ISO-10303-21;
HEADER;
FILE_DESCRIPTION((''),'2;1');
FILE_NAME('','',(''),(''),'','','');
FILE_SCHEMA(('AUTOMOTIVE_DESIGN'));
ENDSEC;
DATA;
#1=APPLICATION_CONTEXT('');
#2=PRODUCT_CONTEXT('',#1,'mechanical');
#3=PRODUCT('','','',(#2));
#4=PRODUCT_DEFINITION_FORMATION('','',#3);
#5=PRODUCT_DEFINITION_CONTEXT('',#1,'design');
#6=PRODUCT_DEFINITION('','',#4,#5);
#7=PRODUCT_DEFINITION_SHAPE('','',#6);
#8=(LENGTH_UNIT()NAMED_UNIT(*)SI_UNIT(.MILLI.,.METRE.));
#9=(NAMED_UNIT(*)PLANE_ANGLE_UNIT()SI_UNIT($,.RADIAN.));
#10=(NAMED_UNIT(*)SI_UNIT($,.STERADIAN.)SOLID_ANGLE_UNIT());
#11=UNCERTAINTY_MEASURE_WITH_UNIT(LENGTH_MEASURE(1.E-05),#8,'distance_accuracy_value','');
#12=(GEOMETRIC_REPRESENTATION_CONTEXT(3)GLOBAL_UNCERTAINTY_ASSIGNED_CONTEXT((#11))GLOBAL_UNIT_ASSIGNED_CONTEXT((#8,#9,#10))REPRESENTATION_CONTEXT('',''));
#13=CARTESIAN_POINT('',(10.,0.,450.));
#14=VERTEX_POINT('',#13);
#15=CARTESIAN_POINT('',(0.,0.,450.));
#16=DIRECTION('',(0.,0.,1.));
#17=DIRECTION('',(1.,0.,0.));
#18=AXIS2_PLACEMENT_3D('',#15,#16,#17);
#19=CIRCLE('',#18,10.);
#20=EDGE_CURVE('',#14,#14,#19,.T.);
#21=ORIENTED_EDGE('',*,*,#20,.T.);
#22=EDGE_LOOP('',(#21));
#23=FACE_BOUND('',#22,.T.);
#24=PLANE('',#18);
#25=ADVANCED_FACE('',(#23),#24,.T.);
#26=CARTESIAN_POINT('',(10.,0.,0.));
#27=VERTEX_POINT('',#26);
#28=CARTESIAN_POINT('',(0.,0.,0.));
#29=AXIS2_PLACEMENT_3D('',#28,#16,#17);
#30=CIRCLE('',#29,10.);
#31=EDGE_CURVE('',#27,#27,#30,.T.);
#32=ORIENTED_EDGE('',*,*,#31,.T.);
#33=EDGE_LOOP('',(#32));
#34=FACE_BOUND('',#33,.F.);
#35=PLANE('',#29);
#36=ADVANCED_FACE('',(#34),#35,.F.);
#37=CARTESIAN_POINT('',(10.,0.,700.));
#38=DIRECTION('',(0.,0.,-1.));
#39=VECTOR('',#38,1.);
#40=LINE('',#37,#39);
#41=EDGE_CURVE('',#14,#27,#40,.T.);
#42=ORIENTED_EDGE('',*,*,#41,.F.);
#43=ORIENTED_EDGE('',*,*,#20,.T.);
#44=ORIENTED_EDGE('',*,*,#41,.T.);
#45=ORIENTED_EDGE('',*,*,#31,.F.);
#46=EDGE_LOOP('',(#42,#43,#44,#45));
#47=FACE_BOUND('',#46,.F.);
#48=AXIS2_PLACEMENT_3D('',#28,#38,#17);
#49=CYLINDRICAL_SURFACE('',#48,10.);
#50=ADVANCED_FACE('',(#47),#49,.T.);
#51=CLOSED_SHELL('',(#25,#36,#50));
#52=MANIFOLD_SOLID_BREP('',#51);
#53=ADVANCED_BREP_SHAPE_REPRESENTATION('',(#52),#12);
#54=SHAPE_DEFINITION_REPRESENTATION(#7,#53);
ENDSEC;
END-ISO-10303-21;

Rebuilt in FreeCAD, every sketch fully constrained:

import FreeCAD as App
import Part
import Sketcher
from FreeCAD import Vector

doc = App.newDocument("Part")
params = doc.addObject("Spreadsheet::Sheet", "Params")
for row, (alias, value) in enumerate([
    ("sketch1_diameter", "20 mm"),
    ("pad1_length", "300 mm"),
    ("sketch2_diameter", "20 mm"),
    ("pad2_length", "400 mm"),
    ("sketch3_diameter", "20 mm"),
    ("pocket1_length", "250 mm"),
], start=1):
    params.set(f"A{row}", alias)
    params.set(f"B{row}", "=" + value)
    params.setAlias(f"B{row}", alias)

body = doc.addObject("PartDesign::Body", "Body")

sketch1 = doc.addObject("Sketcher::SketchObject", "Sketch")
body.addObject(sketch1)
sketch1.AttachmentSupport = (doc.XY_Plane, [""])
sketch1.MapMode = "FlatFace"
sketch1.addGeometry(Part.Circle(Vector(0, 0, 0), Vector(0, 0, 1), 10), False)
sketch1.addConstraint(Sketcher.Constraint("Coincident", 0, 3, -1, 1))
sketch1.addConstraint(Sketcher.Constraint("Diameter", 0, 20.0))
sketch1.setExpression("Constraints[1]", "Params.sketch1_diameter")
pad1 = doc.addObject("PartDesign::Pad", "Pad")
body.addObject(pad1)
pad1.Profile = sketch1
pad1.setExpression("Length", "Params.pad1_length")

sketch2 = doc.addObject("Sketcher::SketchObject", "Sketch001")
body.addObject(sketch2)
sketch2.AttachmentSupport = (doc.XY_Plane, [""])
sketch2.MapMode = "FlatFace"
sketch2.AttachmentOffset = App.Placement(Vector(0, 0, 300), App.Rotation())
sketch2.addGeometry(Part.Circle(Vector(0, 0, 0), Vector(0, 0, 1), 10), False)
sketch2.addConstraint(Sketcher.Constraint("Coincident", 0, 3, -1, 1))
sketch2.addConstraint(Sketcher.Constraint("Diameter", 0, 20.0))
sketch2.setExpression("Constraints[1]", "Params.sketch2_diameter")
pad2 = doc.addObject("PartDesign::Pad", "Pad001")
body.addObject(pad2)
pad2.Profile = sketch2
pad2.setExpression("Length", "Params.pad2_length")

sketch3 = doc.addObject("Sketcher::SketchObject", "Sketch002")
body.addObject(sketch3)
sketch3.AttachmentSupport = (doc.XY_Plane, [""])
sketch3.MapMode = "FlatFace"
sketch3.AttachmentOffset = App.Placement(Vector(0, 0, 700), App.Rotation())
sketch3.addGeometry(Part.Circle(Vector(0, 0, 0), Vector(0, 0, 1), 10), False)
sketch3.addConstraint(Sketcher.Constraint("Coincident", 0, 3, -1, 1))
sketch3.addConstraint(Sketcher.Constraint("Diameter", 0, 20.0))
sketch3.setExpression("Constraints[1]", "Params.sketch3_diameter")
pocket1 = doc.addObject("PartDesign::Pocket", "Pocket")
body.addObject(pocket1)
pocket1.Profile = sketch3
pocket1.setExpression("Length", "Params.pocket1_length")

doc.recompute()
